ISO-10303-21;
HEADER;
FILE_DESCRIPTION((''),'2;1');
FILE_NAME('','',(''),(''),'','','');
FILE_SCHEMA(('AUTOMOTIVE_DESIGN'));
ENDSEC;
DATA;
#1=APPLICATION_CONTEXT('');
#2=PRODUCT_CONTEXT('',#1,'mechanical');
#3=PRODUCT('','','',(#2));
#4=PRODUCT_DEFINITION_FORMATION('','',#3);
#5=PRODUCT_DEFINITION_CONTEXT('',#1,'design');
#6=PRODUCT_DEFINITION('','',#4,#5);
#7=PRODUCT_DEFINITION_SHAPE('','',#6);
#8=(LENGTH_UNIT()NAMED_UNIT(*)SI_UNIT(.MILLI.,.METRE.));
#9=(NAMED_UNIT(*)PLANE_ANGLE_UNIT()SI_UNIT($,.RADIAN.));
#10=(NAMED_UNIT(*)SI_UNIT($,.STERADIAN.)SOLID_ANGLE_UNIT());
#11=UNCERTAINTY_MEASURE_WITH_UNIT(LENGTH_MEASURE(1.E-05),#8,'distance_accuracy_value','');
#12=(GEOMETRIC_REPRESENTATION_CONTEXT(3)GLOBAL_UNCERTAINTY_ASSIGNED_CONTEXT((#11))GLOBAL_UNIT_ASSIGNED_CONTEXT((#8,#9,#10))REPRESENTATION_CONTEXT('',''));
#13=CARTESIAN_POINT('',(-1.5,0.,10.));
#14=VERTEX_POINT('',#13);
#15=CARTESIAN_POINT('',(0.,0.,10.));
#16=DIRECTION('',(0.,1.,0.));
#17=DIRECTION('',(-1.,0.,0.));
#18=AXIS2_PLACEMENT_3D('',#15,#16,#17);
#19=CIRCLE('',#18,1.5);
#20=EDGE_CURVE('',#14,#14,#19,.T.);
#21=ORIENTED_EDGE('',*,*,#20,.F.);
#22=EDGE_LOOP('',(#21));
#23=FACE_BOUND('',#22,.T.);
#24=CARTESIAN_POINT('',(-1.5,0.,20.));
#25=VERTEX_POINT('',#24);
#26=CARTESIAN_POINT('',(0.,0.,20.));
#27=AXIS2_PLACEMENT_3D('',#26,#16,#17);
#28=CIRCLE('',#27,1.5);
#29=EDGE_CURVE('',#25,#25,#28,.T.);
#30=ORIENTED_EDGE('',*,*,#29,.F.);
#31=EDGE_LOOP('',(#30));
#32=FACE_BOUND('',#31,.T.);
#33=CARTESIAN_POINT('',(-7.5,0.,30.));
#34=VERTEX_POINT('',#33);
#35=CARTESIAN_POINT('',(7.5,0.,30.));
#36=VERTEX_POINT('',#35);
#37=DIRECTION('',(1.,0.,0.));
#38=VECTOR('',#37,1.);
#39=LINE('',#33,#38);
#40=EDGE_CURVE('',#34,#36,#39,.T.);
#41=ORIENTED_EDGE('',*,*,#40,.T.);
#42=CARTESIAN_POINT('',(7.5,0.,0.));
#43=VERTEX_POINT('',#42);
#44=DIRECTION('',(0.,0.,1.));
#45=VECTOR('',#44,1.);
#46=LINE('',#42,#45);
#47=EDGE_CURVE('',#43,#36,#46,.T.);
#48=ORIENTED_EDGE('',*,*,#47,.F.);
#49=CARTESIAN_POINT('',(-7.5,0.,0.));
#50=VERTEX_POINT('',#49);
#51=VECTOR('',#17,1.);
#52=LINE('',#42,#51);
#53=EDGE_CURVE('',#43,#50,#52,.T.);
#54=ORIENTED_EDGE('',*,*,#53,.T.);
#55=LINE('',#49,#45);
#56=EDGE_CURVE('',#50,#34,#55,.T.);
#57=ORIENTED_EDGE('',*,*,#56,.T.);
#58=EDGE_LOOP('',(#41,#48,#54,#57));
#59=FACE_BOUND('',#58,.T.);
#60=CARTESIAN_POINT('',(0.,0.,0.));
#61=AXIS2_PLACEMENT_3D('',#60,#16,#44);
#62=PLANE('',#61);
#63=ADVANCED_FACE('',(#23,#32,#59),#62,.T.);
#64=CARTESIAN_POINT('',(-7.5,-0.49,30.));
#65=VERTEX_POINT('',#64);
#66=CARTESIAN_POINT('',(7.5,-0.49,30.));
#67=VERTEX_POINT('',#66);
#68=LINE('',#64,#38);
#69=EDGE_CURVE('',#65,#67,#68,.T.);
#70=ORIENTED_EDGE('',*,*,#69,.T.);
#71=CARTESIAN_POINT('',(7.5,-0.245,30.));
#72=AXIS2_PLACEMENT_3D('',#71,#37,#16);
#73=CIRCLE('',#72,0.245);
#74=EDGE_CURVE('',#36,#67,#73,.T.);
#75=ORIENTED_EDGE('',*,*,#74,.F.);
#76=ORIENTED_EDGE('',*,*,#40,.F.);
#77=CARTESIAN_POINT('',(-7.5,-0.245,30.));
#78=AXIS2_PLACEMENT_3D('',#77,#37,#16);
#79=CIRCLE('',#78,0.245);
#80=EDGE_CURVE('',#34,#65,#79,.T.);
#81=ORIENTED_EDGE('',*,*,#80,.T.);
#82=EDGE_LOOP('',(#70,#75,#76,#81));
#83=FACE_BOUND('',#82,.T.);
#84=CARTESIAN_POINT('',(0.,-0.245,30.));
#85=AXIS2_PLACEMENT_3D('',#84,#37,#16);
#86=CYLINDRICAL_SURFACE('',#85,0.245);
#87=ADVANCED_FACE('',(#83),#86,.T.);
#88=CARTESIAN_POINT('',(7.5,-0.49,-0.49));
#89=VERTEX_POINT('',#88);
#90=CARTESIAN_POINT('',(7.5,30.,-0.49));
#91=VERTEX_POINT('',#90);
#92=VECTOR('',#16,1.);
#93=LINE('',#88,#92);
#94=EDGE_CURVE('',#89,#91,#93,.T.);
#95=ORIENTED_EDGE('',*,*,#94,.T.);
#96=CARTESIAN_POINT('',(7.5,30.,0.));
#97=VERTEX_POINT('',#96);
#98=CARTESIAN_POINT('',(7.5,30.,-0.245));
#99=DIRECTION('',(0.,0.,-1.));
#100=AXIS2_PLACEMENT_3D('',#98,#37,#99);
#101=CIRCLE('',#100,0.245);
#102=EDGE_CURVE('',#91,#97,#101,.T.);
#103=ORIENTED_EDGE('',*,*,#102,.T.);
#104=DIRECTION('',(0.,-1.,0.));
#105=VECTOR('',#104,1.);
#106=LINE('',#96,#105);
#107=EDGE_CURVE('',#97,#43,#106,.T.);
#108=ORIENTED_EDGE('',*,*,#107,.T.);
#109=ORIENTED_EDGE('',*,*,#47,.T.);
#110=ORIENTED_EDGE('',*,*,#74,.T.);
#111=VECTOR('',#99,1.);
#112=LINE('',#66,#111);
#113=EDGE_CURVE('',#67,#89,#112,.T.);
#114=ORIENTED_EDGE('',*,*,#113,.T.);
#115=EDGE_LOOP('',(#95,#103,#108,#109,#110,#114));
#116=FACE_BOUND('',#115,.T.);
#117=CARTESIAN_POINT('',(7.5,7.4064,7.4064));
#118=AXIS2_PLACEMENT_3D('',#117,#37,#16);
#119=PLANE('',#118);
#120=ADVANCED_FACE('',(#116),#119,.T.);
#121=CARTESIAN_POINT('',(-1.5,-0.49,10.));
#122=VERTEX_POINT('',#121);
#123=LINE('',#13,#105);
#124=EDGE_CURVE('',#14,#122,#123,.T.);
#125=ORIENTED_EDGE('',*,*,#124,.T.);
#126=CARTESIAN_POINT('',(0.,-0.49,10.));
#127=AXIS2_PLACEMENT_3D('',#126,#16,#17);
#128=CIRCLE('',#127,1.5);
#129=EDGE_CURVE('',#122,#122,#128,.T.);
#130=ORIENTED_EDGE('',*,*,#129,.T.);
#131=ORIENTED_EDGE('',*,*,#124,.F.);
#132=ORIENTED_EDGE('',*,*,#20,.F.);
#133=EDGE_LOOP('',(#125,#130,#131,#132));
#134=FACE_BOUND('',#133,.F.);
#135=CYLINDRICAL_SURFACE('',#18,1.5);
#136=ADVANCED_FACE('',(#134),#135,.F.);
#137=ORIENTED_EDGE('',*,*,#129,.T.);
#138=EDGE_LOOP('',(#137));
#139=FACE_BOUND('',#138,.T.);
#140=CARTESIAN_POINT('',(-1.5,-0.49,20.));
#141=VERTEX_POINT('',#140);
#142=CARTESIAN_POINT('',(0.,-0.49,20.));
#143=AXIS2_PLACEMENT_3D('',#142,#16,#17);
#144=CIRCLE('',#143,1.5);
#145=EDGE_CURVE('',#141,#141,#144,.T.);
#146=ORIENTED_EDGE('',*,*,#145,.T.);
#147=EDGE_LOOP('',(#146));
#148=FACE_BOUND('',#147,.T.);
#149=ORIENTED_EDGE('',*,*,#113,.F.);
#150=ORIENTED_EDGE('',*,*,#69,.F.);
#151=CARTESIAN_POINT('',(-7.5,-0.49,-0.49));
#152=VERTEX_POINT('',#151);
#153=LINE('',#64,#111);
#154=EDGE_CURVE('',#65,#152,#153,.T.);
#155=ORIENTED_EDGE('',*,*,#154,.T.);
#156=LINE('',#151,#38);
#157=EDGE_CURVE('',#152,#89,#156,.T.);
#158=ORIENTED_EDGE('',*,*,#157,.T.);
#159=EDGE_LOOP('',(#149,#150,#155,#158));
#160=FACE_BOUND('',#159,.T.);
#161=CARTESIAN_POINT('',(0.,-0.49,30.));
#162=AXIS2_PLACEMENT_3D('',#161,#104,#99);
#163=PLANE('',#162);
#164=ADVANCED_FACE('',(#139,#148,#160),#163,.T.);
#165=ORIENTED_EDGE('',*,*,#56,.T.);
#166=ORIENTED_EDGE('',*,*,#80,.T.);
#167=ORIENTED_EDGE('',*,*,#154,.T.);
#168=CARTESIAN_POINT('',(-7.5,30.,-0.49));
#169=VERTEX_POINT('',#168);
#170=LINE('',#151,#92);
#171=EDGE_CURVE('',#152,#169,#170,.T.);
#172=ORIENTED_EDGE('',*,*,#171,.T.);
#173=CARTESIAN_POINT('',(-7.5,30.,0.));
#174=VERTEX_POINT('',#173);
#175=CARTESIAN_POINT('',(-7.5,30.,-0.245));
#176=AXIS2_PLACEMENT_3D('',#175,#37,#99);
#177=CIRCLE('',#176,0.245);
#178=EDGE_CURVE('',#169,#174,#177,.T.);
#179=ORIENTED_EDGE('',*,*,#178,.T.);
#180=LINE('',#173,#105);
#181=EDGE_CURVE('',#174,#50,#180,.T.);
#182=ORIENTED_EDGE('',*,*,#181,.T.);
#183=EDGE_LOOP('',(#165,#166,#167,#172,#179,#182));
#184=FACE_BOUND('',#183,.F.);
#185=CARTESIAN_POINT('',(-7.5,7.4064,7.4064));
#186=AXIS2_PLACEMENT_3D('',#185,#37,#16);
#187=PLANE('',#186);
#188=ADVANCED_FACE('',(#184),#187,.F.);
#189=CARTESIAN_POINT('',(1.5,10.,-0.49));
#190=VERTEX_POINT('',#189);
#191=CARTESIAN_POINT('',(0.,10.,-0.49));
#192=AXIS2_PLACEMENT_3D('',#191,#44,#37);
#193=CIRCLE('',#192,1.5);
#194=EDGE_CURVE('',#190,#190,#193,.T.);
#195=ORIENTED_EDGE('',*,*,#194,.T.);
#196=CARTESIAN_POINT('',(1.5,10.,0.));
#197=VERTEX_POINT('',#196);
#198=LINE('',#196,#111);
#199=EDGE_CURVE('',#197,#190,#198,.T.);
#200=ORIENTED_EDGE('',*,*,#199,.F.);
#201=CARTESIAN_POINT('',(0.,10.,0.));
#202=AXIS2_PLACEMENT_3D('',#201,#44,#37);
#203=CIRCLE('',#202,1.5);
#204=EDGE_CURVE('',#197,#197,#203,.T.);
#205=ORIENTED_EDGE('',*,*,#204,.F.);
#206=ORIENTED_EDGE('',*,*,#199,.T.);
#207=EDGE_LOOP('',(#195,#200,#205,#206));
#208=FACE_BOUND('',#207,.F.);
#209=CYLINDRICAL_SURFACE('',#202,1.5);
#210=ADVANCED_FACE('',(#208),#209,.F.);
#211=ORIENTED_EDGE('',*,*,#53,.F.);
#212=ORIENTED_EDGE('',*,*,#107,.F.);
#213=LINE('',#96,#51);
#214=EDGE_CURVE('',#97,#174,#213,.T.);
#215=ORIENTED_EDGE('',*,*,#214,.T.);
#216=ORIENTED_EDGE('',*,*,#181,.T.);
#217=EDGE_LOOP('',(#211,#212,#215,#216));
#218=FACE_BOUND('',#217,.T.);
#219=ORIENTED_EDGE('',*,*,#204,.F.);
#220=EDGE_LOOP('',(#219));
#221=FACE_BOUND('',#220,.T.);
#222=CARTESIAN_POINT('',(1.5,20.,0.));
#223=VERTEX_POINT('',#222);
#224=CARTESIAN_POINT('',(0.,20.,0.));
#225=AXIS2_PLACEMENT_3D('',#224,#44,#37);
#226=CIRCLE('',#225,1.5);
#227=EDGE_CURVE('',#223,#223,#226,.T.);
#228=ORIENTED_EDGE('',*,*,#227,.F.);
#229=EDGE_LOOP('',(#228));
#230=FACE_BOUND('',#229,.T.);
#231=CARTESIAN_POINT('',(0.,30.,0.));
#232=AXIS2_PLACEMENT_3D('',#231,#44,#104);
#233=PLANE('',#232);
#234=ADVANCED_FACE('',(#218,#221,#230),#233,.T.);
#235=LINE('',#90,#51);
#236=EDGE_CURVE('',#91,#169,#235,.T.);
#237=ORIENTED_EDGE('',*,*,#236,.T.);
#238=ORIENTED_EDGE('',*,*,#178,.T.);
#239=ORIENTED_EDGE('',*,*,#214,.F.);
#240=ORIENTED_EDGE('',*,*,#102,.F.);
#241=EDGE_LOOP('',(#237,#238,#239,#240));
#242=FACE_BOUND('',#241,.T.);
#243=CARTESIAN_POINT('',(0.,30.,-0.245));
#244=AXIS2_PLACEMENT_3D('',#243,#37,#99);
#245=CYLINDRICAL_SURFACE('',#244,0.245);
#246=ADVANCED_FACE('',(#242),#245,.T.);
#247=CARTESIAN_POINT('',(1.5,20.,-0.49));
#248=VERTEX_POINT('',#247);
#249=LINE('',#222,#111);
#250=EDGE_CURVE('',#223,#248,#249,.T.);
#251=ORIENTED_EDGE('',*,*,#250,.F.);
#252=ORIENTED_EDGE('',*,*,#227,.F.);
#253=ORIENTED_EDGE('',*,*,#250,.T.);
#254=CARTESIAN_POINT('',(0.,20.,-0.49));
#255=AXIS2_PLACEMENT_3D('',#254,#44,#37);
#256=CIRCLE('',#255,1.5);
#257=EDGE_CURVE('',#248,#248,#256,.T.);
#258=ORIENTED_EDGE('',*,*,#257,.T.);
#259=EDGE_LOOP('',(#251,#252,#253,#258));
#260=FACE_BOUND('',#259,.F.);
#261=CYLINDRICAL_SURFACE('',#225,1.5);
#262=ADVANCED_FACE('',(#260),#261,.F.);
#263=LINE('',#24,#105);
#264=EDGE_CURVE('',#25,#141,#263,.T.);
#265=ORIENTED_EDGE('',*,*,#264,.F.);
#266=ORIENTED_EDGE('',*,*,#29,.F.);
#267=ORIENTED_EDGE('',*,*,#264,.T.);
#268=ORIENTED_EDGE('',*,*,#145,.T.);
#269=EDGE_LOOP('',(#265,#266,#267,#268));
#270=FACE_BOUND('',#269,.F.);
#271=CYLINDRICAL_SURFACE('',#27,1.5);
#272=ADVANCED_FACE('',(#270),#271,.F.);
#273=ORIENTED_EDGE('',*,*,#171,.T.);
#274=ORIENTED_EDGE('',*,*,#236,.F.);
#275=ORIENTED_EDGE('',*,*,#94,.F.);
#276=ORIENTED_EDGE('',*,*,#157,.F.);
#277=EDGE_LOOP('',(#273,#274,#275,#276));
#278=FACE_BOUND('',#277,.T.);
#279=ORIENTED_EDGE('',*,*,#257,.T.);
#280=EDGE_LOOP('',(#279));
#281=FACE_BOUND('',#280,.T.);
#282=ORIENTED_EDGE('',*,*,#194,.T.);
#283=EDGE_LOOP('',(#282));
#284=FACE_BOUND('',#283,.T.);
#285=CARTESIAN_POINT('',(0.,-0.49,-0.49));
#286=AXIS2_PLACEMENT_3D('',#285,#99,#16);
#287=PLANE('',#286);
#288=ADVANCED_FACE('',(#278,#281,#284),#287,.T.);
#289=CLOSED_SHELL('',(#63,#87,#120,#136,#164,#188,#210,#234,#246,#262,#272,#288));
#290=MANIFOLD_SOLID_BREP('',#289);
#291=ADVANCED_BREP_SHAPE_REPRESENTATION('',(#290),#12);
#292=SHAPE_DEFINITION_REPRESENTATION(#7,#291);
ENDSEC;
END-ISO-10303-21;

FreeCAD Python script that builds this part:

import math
import FreeCAD as App
import Part
import Sketcher

doc = App.newDocument("Part")
body = doc.addObject("PartDesign::Body", "Body")

sketch1 = body.newObject("Sketcher::SketchObject", "Sketch")
sketch1.AttachmentSupport = (doc.getObject("YZ_Plane"), [""])
sketch1.MapMode = "FlatFace"
sketch1.addGeometry([
    Part.LineSegment(App.Vector(0, 0, 0), App.Vector(0, 30, 0)),
    Part.ArcOfCircle(Part.Circle(App.Vector(-0.245, 30, 0), App.Vector(0, 0, 1), 0.245), math.radians(0), math.radians(180)),
    Part.LineSegment(App.Vector(-0.49, 30, 0), App.Vector(-0.49, -0.49, 0)),
    Part.LineSegment(App.Vector(-0.49, -0.49, 0), App.Vector(30, -0.49, 0)),
    Part.ArcOfCircle(Part.Circle(App.Vector(30, -0.245, 0), App.Vector(0, 0, 1), 0.245), math.radians(-90), math.radians(90)),
    Part.LineSegment(App.Vector(30, 0, 0), App.Vector(0, 0, 0)),
], False)
sketch1.addConstraint([
    Sketcher.Constraint("Tangent", 0, 2, 1, 1),
    Sketcher.Constraint("Tangent", 1, 2, 2, 1),
    Sketcher.Constraint("Coincident", 2, 2, 3, 1),
    Sketcher.Constraint("Tangent", 3, 2, 4, 1),
    Sketcher.Constraint("Tangent", 4, 2, 5, 1),
    Sketcher.Constraint("Coincident", 5, 2, 0, 1),
    Sketcher.Constraint("Vertical", 0),
    Sketcher.Constraint("Vertical", 2),
    Sketcher.Constraint("Horizontal", 3),
    Sketcher.Constraint("Horizontal", 5),
    Sketcher.Constraint("Coincident", 5, 2, -1, 1),
    Sketcher.Constraint("Equal", 1, 4),
    Sketcher.Constraint("Equal", 5, 0),
    Sketcher.Constraint("DistanceX", 5, 2, 5, 1, 30.0),
    Sketcher.Constraint("Radius", 1, 0.245),
])
pad1 = body.newObject("PartDesign::Pad", "Pad")
pad1.Profile = sketch1
pad1.Length = 15
pad1.Midplane = True

sketch2 = body.newObject("Sketcher::SketchObject", "Sketch001")
sketch2.AttachmentSupport = (doc.getObject("XZ_Plane"), [""])
sketch2.MapMode = "FlatFace"
sketch2.addGeometry([
    Part.Circle(App.Vector(0, 20, 0), App.Vector(0, 0, 1), 1.5),
    Part.Circle(App.Vector(0, 10, 0), App.Vector(0, 0, 1), 1.5),
], False)
sketch2.addConstraint([
    Sketcher.Constraint("Equal", 0, 1),
    Sketcher.Constraint("PointOnObject", 0, 3, -2),
    Sketcher.Constraint("PointOnObject", 1, 3, -2),
    Sketcher.Constraint("Diameter", 0, 3.0),
    Sketcher.Constraint("DistanceY", -1, 1, 0, 3, 20.0),
    Sketcher.Constraint("DistanceY", -1, 1, 1, 3, 10.0),
])
pocket1 = body.newObject("PartDesign::Pocket", "Pocket")
pocket1.Profile = sketch2
pocket1.Type = "ThroughAll"
pocket1.Reversed = True

sketch3 = body.newObject("Sketcher::SketchObject", "Sketch002")
sketch3.AttachmentSupport = (doc.getObject("XY_Plane"), [""])
sketch3.MapMode = "FlatFace"
sketch3.addGeometry([
    Part.Circle(App.Vector(0, 20, 0), App.Vector(0, 0, 1), 1.5),
    Part.Circle(App.Vector(0, 10, 0), App.Vector(0, 0, 1), 1.5),
], False)
sketch3.addConstraint([
    Sketcher.Constraint("Equal", 0, 1),
    Sketcher.Constraint("PointOnObject", 0, 3, -2),
    Sketcher.Constraint("PointOnObject", 1, 3, -2),
    Sketcher.Constraint("Diameter", 0, 3.0),
    Sketcher.Constraint("DistanceY", -1, 1, 0, 3, 20.0),
    Sketcher.Constraint("DistanceY", -1, 1, 1, 3, 10.0),
])
pocket2 = body.newObject("PartDesign::Pocket", "Pocket001")
pocket2.Profile = sketch3
pocket2.Type = "ThroughAll"

doc.recompute()
